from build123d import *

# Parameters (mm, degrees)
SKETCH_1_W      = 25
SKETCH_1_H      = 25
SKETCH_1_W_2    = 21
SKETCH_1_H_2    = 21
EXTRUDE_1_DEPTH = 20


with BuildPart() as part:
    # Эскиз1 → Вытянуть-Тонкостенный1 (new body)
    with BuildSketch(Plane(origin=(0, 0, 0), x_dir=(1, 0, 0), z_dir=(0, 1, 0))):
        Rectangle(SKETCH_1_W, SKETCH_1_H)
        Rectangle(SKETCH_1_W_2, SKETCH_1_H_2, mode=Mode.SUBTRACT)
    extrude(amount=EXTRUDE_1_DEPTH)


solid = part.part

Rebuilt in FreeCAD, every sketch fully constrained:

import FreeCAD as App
import Part
import Sketcher
from FreeCAD import Vector
Q = App.Units.Quantity


def add_polygon(sketch, points):
    """Adds a closed chain of lines whose ends are joined by coincident constraints."""
    first, n = sketch.GeometryCount, len(points)
    for a, b in zip(points, points[1:] + points[:1]):
        sketch.addGeometry(Part.LineSegment(App.Vector(*a, 0), App.Vector(*b, 0)), False)
    for i in range(n):
        sketch.addConstraint(Sketcher.Constraint("Coincident", first + i, 2, first + (i + 1) % n, 1))

doc = App.newDocument("Part")
body = doc.addObject("PartDesign::Body", "Body")

# Sketch on XZ plane
sketch1 = body.newObject("Sketcher::SketchObject", "Sketch")
sketch1.AttachmentSupport = (doc.getObject("XZ_Plane"), [""])
sketch1.MapMode = "FlatFace"
add_polygon(sketch1, [(-12, -12), (-12, 12), (12, 12), (12, -12)])  # lines 0-3
add_polygon(sketch1, [(10, 10), (-10, 10), (-10, -10), (10, -10)])  # lines 4-7
sketch1.addConstraint([
    Sketcher.Constraint("Vertical", 0),
    Sketcher.Constraint("Horizontal", 1),
    Sketcher.Constraint("Vertical", 2),
    Sketcher.Constraint("Horizontal", 3),
    Sketcher.Constraint("Horizontal", 4),
    Sketcher.Constraint("Vertical", 5),
    Sketcher.Constraint("Horizontal", 6),
    Sketcher.Constraint("Vertical", 7),
    Sketcher.Constraint("Symmetric", 0, 2, 2, 2, -1, 1),
    Sketcher.Constraint("Symmetric", 4, 2, 6, 2, -1, 1),
    Sketcher.Constraint("Equal", 3, 0),
    Sketcher.Constraint("Equal", 6, 5),
    Sketcher.Constraint("DistanceX", 1, 1, 1, 2, Q("25 mm")),
    Sketcher.Constraint("DistanceX", 4, 2, 4, 1, Q("21 mm")),
])
pad1 = body.newObject("PartDesign::Pad", "Pad")
pad1.Profile = sketch1
pad1.Length = 20
pad1.Reversed = True

doc.recompute()
